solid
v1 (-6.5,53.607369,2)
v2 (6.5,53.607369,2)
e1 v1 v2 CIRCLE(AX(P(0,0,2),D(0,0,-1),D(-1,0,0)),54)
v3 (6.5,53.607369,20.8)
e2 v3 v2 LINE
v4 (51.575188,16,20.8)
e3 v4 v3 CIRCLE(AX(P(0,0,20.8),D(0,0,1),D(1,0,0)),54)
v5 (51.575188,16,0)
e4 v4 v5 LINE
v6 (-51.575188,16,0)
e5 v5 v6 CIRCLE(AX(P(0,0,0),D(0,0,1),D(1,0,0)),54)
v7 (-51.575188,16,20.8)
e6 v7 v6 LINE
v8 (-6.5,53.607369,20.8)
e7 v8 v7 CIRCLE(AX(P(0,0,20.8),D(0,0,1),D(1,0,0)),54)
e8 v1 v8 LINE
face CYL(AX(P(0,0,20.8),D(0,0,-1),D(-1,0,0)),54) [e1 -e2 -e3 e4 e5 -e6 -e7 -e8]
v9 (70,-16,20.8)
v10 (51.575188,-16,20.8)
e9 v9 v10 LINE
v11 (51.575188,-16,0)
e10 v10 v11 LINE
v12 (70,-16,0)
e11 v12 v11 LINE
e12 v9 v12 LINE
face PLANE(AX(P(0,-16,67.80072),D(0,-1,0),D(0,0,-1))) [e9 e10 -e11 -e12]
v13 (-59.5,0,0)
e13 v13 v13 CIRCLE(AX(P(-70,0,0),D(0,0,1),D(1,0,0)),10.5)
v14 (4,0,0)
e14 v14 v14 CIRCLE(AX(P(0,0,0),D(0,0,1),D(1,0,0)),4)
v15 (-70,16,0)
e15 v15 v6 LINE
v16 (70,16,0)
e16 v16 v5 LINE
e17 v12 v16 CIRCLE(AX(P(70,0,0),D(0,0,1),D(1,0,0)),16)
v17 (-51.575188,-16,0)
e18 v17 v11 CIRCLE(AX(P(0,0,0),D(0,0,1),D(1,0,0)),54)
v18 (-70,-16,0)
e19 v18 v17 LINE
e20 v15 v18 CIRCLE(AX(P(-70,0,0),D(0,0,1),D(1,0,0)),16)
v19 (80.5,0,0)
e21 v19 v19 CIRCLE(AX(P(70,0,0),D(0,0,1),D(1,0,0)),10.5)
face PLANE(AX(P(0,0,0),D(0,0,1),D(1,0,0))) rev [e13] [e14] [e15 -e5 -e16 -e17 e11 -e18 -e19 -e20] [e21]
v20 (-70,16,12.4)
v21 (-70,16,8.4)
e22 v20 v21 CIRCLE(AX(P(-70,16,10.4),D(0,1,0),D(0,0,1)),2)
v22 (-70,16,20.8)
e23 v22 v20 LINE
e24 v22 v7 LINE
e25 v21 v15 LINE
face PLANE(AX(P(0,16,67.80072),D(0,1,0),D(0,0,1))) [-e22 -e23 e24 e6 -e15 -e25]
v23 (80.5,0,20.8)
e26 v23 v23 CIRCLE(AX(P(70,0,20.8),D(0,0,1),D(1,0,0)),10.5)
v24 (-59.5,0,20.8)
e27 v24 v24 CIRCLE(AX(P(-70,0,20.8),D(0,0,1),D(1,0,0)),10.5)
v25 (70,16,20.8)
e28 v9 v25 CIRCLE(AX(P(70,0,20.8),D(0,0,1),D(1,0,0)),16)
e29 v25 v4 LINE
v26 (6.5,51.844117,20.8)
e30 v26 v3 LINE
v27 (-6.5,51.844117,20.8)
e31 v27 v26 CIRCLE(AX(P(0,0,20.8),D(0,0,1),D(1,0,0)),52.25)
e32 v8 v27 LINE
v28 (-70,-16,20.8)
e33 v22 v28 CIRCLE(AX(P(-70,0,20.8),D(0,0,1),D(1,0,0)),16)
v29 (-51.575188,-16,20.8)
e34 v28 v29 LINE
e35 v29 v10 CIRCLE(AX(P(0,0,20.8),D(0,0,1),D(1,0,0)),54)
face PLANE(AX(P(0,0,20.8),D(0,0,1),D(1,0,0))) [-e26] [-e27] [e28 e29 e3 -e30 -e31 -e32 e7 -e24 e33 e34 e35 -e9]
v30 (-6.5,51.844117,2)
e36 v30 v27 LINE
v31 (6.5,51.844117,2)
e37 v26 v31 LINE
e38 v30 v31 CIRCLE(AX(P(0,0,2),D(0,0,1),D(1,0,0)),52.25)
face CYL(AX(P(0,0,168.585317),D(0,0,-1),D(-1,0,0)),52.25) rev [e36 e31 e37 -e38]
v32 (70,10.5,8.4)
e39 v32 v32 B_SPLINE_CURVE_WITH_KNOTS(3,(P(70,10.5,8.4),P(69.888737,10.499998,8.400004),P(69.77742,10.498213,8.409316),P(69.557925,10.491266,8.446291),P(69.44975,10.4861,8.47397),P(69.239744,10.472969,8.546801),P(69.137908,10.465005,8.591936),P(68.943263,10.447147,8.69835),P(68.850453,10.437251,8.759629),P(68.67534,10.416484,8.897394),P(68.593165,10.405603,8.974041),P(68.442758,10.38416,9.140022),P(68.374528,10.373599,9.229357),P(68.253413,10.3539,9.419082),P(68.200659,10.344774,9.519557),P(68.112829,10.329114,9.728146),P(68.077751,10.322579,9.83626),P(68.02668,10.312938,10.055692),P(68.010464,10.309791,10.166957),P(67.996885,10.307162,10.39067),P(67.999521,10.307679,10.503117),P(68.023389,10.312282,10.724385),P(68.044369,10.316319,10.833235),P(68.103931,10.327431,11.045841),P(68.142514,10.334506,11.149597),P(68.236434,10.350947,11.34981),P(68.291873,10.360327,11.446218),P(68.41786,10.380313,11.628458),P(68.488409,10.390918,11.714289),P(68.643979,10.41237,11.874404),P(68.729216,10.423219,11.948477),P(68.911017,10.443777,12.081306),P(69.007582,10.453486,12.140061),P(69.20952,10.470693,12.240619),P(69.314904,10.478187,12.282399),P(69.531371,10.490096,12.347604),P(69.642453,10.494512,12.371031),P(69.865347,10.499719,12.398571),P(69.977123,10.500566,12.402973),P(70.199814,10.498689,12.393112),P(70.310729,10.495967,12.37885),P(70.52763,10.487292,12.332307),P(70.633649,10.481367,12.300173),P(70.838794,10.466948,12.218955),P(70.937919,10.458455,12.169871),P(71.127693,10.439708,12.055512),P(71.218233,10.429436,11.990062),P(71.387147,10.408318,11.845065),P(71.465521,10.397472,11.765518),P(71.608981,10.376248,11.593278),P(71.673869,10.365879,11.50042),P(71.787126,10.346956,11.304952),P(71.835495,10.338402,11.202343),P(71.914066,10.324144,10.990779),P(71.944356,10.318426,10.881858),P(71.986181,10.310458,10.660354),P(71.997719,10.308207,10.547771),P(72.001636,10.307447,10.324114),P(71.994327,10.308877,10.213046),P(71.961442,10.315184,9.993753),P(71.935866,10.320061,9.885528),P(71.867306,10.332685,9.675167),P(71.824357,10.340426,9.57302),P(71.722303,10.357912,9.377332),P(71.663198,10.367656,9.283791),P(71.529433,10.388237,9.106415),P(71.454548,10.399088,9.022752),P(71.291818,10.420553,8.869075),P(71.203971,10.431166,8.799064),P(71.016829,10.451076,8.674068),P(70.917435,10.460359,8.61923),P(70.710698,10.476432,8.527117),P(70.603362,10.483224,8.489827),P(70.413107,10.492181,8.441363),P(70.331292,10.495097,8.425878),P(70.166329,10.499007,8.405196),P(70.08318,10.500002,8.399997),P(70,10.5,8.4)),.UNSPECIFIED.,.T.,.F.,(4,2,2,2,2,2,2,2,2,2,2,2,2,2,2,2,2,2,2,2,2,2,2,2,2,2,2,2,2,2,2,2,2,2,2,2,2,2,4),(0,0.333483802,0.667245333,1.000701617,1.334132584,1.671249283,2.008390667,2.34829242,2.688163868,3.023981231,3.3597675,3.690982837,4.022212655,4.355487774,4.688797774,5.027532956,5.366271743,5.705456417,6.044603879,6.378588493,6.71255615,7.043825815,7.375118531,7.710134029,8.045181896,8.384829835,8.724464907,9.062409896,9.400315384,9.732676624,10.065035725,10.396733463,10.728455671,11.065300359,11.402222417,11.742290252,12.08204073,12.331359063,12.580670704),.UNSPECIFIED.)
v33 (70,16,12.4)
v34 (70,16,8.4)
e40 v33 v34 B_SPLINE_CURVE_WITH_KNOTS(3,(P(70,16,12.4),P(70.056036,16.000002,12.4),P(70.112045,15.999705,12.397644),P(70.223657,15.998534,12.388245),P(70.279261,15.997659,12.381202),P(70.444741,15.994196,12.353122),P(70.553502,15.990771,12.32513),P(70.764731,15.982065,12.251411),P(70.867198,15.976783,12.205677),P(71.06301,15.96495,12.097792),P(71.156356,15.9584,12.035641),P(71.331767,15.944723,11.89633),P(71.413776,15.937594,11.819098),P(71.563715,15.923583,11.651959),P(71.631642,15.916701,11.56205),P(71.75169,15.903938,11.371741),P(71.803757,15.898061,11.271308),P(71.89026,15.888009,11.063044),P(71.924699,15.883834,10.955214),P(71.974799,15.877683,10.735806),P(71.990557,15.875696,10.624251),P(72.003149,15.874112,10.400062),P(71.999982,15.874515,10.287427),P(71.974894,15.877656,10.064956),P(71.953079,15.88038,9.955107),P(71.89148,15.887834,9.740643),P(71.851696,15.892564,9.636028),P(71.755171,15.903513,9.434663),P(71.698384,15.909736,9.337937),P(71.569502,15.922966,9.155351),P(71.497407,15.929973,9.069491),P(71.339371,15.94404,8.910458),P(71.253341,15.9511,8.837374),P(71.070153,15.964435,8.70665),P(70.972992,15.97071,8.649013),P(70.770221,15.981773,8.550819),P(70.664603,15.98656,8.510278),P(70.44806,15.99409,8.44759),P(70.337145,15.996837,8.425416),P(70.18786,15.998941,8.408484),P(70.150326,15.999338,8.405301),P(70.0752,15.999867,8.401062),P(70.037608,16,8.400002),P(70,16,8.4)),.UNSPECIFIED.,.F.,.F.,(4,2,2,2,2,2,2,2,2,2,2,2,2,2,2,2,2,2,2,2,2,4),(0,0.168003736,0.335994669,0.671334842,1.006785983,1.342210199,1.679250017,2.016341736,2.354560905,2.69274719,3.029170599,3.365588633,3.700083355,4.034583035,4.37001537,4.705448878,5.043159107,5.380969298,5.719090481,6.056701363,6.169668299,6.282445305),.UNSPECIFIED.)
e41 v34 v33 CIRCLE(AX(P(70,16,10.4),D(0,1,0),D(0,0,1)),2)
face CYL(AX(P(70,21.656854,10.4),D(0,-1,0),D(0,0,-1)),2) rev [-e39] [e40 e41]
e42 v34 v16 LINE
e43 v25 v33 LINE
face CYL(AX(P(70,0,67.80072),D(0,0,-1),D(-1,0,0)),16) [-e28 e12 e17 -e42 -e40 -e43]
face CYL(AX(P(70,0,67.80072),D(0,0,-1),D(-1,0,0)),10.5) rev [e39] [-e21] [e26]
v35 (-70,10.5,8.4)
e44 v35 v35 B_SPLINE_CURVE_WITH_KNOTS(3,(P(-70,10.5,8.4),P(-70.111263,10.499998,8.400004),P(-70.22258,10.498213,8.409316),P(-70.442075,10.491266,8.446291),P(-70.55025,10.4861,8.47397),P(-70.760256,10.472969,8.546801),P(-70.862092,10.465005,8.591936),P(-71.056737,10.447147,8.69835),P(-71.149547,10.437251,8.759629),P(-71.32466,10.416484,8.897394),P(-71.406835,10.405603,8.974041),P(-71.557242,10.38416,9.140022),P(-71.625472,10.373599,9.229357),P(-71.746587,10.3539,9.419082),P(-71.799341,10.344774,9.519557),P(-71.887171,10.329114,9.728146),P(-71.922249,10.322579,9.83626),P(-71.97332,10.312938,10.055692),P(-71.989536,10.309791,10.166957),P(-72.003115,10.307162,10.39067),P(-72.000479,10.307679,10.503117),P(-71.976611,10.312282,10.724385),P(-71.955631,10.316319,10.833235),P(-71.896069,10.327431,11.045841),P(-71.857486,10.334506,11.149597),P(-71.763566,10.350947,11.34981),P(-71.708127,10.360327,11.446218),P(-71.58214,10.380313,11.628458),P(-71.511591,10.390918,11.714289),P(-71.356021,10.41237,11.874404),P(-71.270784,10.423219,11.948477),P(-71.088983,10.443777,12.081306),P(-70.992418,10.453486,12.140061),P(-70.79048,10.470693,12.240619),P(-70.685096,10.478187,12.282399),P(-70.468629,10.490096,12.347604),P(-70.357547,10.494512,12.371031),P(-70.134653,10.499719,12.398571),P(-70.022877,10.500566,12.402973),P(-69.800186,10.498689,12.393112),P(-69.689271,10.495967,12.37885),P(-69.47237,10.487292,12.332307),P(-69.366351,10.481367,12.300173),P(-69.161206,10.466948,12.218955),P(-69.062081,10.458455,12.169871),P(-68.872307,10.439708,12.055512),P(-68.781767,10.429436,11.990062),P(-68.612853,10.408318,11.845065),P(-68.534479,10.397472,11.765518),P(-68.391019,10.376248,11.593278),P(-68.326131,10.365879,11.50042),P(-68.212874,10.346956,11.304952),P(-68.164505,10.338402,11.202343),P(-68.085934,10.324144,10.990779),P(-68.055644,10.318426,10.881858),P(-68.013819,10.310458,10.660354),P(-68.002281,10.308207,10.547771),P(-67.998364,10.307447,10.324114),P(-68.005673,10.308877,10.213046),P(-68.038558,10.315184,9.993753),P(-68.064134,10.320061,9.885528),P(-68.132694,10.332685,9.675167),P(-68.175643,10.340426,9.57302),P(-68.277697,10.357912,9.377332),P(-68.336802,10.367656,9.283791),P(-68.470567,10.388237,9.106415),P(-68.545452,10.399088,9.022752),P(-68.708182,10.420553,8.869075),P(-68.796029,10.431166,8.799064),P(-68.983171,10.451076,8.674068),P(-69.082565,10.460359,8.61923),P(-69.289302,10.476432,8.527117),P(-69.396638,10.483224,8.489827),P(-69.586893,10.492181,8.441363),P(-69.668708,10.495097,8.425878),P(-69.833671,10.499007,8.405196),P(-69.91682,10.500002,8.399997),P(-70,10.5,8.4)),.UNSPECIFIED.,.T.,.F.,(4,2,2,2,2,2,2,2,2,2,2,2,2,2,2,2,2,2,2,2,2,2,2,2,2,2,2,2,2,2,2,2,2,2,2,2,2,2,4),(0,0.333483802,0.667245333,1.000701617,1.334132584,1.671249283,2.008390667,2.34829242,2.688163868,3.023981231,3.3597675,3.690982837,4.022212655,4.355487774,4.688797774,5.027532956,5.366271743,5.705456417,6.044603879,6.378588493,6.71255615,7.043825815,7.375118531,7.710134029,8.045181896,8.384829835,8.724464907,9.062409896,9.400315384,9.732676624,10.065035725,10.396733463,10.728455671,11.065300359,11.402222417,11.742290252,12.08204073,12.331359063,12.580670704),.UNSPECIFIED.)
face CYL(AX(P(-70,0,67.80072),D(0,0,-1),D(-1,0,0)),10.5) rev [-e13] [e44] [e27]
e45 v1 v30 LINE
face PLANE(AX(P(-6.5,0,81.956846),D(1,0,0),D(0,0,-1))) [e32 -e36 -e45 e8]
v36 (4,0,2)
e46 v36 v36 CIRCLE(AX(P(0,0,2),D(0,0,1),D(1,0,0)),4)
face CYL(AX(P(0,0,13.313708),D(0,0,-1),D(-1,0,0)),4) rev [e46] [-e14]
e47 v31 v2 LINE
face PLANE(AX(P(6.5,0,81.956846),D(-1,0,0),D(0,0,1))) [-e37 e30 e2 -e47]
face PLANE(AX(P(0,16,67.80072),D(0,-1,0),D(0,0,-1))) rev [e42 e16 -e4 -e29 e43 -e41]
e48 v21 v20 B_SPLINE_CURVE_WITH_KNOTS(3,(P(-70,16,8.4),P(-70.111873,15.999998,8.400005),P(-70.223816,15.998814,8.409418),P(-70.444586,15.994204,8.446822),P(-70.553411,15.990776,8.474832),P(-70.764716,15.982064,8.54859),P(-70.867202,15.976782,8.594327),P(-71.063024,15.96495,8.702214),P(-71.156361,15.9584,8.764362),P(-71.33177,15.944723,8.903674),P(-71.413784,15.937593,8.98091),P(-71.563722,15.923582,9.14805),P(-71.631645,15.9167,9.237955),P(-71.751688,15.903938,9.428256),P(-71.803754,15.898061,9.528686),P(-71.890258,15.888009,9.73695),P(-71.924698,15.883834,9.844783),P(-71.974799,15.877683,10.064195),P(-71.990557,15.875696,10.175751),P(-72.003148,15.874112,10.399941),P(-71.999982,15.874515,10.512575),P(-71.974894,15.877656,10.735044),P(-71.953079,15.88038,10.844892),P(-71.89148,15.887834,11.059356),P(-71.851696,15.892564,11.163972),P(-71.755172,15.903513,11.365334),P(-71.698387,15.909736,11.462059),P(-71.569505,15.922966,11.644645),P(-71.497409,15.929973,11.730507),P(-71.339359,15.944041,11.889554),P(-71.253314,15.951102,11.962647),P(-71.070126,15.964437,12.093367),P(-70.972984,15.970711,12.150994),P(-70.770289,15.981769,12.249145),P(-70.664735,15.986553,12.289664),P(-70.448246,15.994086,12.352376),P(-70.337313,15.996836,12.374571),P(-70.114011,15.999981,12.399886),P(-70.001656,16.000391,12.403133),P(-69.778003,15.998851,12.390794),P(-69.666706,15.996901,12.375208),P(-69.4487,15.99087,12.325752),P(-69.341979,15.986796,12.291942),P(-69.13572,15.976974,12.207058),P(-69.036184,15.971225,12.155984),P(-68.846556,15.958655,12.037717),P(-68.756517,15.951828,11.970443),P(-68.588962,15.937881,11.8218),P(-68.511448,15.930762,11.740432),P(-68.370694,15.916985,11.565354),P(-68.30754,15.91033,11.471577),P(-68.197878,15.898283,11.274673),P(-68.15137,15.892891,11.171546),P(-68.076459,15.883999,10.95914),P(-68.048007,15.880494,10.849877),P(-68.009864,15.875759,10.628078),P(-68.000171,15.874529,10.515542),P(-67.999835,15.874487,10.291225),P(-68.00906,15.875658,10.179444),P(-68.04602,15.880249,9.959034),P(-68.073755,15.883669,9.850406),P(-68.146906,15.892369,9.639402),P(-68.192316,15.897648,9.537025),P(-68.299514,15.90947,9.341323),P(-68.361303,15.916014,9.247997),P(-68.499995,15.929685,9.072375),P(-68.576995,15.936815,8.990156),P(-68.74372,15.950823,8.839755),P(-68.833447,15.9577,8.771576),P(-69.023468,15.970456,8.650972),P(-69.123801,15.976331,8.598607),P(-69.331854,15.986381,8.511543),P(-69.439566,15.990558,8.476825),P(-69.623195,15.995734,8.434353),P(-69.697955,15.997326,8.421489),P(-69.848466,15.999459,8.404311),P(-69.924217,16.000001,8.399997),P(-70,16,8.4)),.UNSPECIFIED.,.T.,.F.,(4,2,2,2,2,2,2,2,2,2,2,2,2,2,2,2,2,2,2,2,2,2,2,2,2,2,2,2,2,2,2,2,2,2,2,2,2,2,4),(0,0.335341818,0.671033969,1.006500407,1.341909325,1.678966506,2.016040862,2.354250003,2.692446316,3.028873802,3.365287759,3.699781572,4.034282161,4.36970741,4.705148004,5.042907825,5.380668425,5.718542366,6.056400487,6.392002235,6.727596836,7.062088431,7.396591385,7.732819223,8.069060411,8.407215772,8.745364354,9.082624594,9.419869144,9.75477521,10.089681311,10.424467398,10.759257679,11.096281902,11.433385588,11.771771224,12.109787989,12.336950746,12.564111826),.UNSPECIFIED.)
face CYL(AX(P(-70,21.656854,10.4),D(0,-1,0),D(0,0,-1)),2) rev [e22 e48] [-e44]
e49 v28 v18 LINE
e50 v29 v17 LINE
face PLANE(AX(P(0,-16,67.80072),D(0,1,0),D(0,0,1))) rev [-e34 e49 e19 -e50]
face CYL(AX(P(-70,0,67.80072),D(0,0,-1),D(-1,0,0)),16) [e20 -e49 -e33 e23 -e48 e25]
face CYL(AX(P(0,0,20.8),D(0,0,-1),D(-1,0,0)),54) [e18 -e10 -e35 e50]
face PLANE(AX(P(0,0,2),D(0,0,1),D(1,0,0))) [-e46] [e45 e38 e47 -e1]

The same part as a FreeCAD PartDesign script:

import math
import FreeCAD as App
import Part
import Sketcher
from FreeCAD import Vector

doc = App.newDocument("Part")
body = doc.addObject("PartDesign::Body", "Body")

sketch1 = doc.addObject("Sketcher::SketchObject", "Sketch")
body.addObject(sketch1)
sketch1.AttachmentSupport = (doc.XY_Plane, [""])
sketch1.MapMode = "FlatFace"
sketch1.addGeometry(Part.Circle(Vector(0, 0, 0), Vector(0, 0, 1), 54), False)
sketch1.addConstraint([
    Sketcher.Constraint("Coincident", 0, 3, -1, 1),
    Sketcher.Constraint("Diameter", 0, 108.0),
])
pad1 = doc.addObject("PartDesign::Pad", "Pad")
body.addObject(pad1)
pad1.Profile = sketch1
pad1.Length = 20.8

sketch2 = doc.addObject("Sketcher::SketchObject", "Sketch001")
body.addObject(sketch2)
sketch2.AttachmentSupport = (doc.XY_Plane, [""])
sketch2.MapMode = "FlatFace"
sketch2.AttachmentOffset = App.Placement(Vector(0, 0, 2), App.Rotation())
sketch2.addGeometry(Part.Circle(Vector(0, 0, 0), Vector(0, 0, 1), 52), False)
sketch2.addConstraint([
    Sketcher.Constraint("Coincident", 0, 3, -1, 1),
    Sketcher.Constraint("Diameter", 0, 104.5),
])
pocket1 = doc.addObject("PartDesign::Pocket", "Pocket")
body.addObject(pocket1)
pocket1.Profile = sketch2
pocket1.Length = 18.8
pocket1.Reversed = True

sketch3 = doc.addObject("Sketcher::SketchObject", "Sketch002")
body.addObject(sketch3)
sketch3.AttachmentSupport = (doc.XY_Plane, [""])
sketch3.MapMode = "FlatFace"
sketch3.addGeometry([
    Part.ArcOfCircle(Part.Circle(Vector(0, 0, 0), Vector(0, 0, 1), 54), math.radians(163), math.radians(197)),
    Part.LineSegment(Vector(-52, 16, 0), Vector(-70, 16, 0)),
    Part.ArcOfCircle(Part.Circle(Vector(-70, 0, 0), Vector(0, 0, 1), 16), math.radians(90), math.radians(270)),
    Part.LineSegment(Vector(-70, -16, 0), Vector(-52, -16, 0)),
    Part.Circle(Vector(-70, 0, 0), Vector(0, 0, 1), 10),
    Part.LineSegment(Vector(70, 16, 0), Vector(52, 16, 0)),
    Part.ArcOfCircle(Part.Circle(Vector(0, 0, 0), Vector(0, 0, 1), 54), math.radians(-17), math.radians(17)),
    Part.LineSegment(Vector(52, -16, 0), Vector(70, -16, 0)),
    Part.ArcOfCircle(Part.Circle(Vector(70, 0, 0), Vector(0, 0, 1), 16), math.radians(-90), math.radians(90)),
    Part.Circle(Vector(70, 0, 0), Vector(0, 0, 1), 10),
], False)
sketch3.addConstraint([
    Sketcher.Constraint("Coincident", 0, 1, 1, 1),
    Sketcher.Constraint("Tangent", 1, 2, 2, 1),
    Sketcher.Constraint("Tangent", 2, 2, 3, 1),
    Sketcher.Constraint("Coincident", 3, 2, 0, 2),
    Sketcher.Constraint("Coincident", 5, 2, 6, 2),
    Sketcher.Constraint("Coincident", 6, 1, 7, 1),
    Sketcher.Constraint("Tangent", 7, 2, 8, 1),
    Sketcher.Constraint("Tangent", 8, 2, 5, 1),
    Sketcher.Constraint("Horizontal", 1),
    Sketcher.Constraint("Horizontal", 3),
    Sketcher.Constraint("Horizontal", 5),
    Sketcher.Constraint("Horizontal", 7),
    Sketcher.Constraint("Coincident", 0, 3, -1, 1),
    Sketcher.Constraint("Coincident", 6, 3, -1, 1),
    Sketcher.Constraint("Coincident", 4, 3, 2, 3),
    Sketcher.Constraint("Coincident", 9, 3, 8, 3),
    Sketcher.Constraint("Equal", 0, 6),
    Sketcher.Constraint("Equal", 2, 8),
    Sketcher.Constraint("Equal", 4, 9),
    Sketcher.Constraint("Symmetric", 2, 3, 8, 3, -1, 1),
    Sketcher.Constraint("PointOnObject", 2, 3, -1),
    Sketcher.Constraint("Diameter", 4, 21.0),
    Sketcher.Constraint("Radius", 0, 54.0),
    Sketcher.Constraint("Radius", 2, 16.0),
    Sketcher.Constraint("DistanceX", 2, 3, -1, 1, 70.0),
])
pad2 = doc.addObject("PartDesign::Pad", "Pad001")
body.addObject(pad2)
pad2.Profile = sketch3
pad2.Length = 20.8

sketch4 = doc.addObject("Sketcher::SketchObject", "Sketch003")
body.addObject(sketch4)
sketch4.AttachmentSupport = (doc.XY_Plane, [""])
sketch4.MapMode = "FlatFace"
sketch4.addGeometry(Part.Circle(Vector(0, 0, 0), Vector(0, 0, 1), 4), False)
sketch4.addConstraint([
    Sketcher.Constraint("Coincident", 0, 3, -1, 1),
    Sketcher.Constraint("Diameter", 0, 8.0),
])
pocket2 = doc.addObject("PartDesign::Pocket", "Pocket001")
body.addObject(pocket2)
pocket2.Profile = sketch4
pocket2.Length = 2
pocket2.Reversed = True

sketch5 = doc.addObject("Sketcher::SketchObject", "Sketch004")
body.addObject(sketch5)
sketch5.AttachmentSupport = (doc.XY_Plane, [""])
sketch5.MapMode = "FlatFace"
sketch5.AttachmentOffset = App.Placement(Vector(0, 0, 2), App.Rotation())
sketch5.addGeometry([
    Part.LineSegment(Vector(-6, 60, 0), Vector(-6, 0, 0)),
    Part.LineSegment(Vector(-6, 0, 0), Vector(6, 0, 0)),
    Part.LineSegment(Vector(6, 0, 0), Vector(6, 60, 0)),
    Part.LineSegment(Vector(6, 60, 0), Vector(-6, 60, 0)),
], False)
sketch5.addConstraint([
    Sketcher.Constraint("Coincident", 0, 2, 1, 1),
    Sketcher.Constraint("Coincident", 1, 2, 2, 1),
    Sketcher.Constraint("Coincident", 2, 2, 3, 1),
    Sketcher.Constraint("Coincident", 3, 2, 0, 1),
    Sketcher.Constraint("Vertical", 0),
    Sketcher.Constraint("Horizontal", 1),
    Sketcher.Constraint("Vertical", 2),
    Sketcher.Constraint("Horizontal", 3),
    Sketcher.Constraint("Symmetric", 0, 2, 1, 2, -1, 1),
    Sketcher.Constraint("DistanceX", 1, 1, 1, 2, 13.0),
    Sketcher.Constraint("DistanceY", 0, 2, 0, 1, 59.759182),
])
pocket3 = doc.addObject("PartDesign::Pocket", "Pocket002")
body.addObject(pocket3)
pocket3.Profile = sketch5
pocket3.Length = 18.8
pocket3.Reversed = True

sketch6 = doc.addObject("Sketcher::SketchObject", "Sketch005")
body.addObject(sketch6)
sketch6.AttachmentSupport = (doc.XZ_Plane, [""])
sketch6.MapMode = "FlatFace"
sketch6.addGeometry([
    Part.Circle(Vector(-70, 10.4, 0), Vector(0, 0, 1), 2),
    Part.Circle(Vector(70, 10.4, 0), Vector(0, 0, 1), 2),
], False)
sketch6.addConstraint([
    Sketcher.Constraint("Equal", 0, 1),
    Sketcher.Constraint("Symmetric", 0, 3, 1, 3, -2),
    Sketcher.Constraint("Diameter", 0, 4.0),
    Sketcher.Constraint("DistanceX", 0, 3, -1, 1, 70.0),
    Sketcher.Constraint("DistanceY", -1, 1, 0, 3, 10.4),
])
pocket4 = doc.addObject("PartDesign::Pocket", "Pocket003")
body.addObject(pocket4)
pocket4.Profile = sketch6
pocket4.Length = 16

doc.recompute()
